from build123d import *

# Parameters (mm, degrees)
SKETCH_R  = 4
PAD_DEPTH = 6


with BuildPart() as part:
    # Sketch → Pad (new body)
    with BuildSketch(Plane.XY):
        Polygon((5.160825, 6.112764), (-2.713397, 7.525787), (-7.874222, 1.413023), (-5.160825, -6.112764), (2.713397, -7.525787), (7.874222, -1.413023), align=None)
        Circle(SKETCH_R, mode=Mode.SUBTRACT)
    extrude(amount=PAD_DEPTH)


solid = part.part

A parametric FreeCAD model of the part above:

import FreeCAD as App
import Part
import Sketcher
Q = App.Units.Quantity

doc = App.newDocument("Part")
body = doc.addObject("PartDesign::Body", "Body")

# Sketch on XY plane
sketch1 = body.newObject("Sketcher::SketchObject", "Sketch")
sketch1.AttachmentSupport = (doc.getObject("XY_Plane"), [""])
sketch1.MapMode = "FlatFace"
sketch1.addGeometry(Part.LineSegment(App.Vector(5.2, 6.1, 0), App.Vector(-2.7, 7.5, 0)), False)
sketch1.addGeometry(Part.LineSegment(App.Vector(-2.7, 7.5, 0), App.Vector(-7.9, 1.4, 0)), False)
sketch1.addGeometry(Part.LineSegment(App.Vector(-7.9, 1.4, 0), App.Vector(-5.2, -6.1, 0)), False)
sketch1.addGeometry(Part.LineSegment(App.Vector(-5.2, -6.1, 0), App.Vector(2.7, -7.5, 0)), False)
sketch1.addGeometry(Part.LineSegment(App.Vector(2.7, -7.5, 0), App.Vector(7.9, -1.4, 0)), False)
sketch1.addGeometry(Part.LineSegment(App.Vector(7.9, -1.4, 0), App.Vector(5.2, 6.1, 0)), False)
sketch1.addGeometry(Part.Circle(App.Vector(0, 0, 0), App.Vector(0, 0, 1), 4), False)
sketch1.addConstraint(Sketcher.Constraint("Coincident", 0, 2, 1, 1))
sketch1.addConstraint(Sketcher.Constraint("Coincident", 1, 2, 2, 1))
sketch1.addConstraint(Sketcher.Constraint("Coincident", 2, 2, 3, 1))
sketch1.addConstraint(Sketcher.Constraint("Coincident", 3, 2, 4, 1))
sketch1.addConstraint(Sketcher.Constraint("Coincident", 4, 2, 5, 1))
sketch1.addConstraint(Sketcher.Constraint("Coincident", 5, 2, 0, 1))
sketch1.addConstraint(Sketcher.Constraint("Coincident", 6, 3, -1, 1))
sketch1.addConstraint(Sketcher.Constraint("Symmetric", 0, 2, 3, 2, -1, 1))
sketch1.addConstraint(Sketcher.Constraint("Symmetric", 1, 2, 4, 2, -1, 1))
sketch1.addConstraint(Sketcher.Constraint("Symmetric", 2, 2, 5, 2, -1, 1))
sketch1.addConstraint(Sketcher.Constraint("Equal", 0, 1))
sketch1.addConstraint(Sketcher.Constraint("Equal", 1, 2))
sketch1.addConstraint(Sketcher.Constraint("Diameter", 6, Q("8 mm")))
sketch1.addConstraint(Sketcher.Constraint("Distance", 0, Q("8 mm")))
sketch1.addConstraint(Sketcher.Constraint("DistanceX", 1, 2, -1, 1, Q("7.874222 mm")))
sketch1.addConstraint(Sketcher.Constraint("DistanceY", 2, 2, 0, 2, Q("13.638551 mm")))
sketch1.addConstraint(Sketcher.Constraint("DistanceX", 2, 2, 3, 2, Q("7.874222 mm")))
pad1 = body.newObject("PartDesign::Pad", "Pad")
pad1.Profile = sketch1
pad1.Length = 6

doc.recompute()
